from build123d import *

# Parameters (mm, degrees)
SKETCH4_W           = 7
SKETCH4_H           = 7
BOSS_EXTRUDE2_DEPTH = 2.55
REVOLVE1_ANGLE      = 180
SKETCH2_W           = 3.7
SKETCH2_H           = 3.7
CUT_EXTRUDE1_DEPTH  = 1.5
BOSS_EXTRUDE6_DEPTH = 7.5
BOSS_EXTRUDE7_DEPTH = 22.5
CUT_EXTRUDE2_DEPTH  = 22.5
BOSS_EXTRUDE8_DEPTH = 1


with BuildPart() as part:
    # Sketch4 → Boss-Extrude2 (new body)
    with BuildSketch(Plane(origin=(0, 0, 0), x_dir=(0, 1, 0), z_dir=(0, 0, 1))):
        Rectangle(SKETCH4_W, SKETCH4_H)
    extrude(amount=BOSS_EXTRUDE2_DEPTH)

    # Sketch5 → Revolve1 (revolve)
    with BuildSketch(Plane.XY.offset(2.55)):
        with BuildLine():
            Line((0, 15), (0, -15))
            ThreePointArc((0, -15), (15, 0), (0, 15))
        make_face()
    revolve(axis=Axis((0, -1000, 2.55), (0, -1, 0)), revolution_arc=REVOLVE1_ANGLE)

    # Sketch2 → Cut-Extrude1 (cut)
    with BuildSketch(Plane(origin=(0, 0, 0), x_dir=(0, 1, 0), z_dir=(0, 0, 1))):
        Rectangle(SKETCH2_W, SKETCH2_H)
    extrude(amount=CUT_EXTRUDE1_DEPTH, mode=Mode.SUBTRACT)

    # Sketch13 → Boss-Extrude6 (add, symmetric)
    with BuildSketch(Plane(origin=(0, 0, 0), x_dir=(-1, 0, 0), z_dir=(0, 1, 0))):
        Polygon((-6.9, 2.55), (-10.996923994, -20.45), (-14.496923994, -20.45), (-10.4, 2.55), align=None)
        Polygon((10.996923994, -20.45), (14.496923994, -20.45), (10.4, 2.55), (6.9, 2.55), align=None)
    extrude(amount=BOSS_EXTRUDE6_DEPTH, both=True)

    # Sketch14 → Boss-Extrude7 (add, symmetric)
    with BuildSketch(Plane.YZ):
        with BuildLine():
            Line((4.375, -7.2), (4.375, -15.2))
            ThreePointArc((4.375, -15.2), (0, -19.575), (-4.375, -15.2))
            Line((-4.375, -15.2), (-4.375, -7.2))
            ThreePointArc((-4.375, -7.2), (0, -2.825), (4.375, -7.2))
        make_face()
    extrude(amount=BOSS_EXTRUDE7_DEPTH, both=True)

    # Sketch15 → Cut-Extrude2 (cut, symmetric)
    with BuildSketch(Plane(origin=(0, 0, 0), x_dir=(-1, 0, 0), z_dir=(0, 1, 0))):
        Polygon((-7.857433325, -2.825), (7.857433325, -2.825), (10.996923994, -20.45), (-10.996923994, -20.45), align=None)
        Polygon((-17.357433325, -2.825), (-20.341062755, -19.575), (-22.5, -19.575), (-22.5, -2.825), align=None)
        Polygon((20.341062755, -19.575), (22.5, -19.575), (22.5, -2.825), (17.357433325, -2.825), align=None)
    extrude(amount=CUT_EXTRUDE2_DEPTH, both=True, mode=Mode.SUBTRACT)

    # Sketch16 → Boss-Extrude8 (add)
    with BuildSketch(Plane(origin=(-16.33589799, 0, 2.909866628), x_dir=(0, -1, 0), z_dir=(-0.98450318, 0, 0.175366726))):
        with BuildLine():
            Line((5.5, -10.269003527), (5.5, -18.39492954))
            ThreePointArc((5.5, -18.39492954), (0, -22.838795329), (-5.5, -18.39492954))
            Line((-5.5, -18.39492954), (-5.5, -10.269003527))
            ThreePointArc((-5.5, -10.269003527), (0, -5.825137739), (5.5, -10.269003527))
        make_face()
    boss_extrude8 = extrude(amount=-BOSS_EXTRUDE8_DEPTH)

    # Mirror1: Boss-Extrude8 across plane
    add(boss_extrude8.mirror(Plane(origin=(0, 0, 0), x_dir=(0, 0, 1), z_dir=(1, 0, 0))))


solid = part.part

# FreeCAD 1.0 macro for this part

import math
import FreeCAD as App
import Part
import Sketcher

V = App.Vector
Q = App.Units.Quantity


def add_polygon(sketch, points):
    """Adds a closed chain of lines whose ends are joined by coincident constraints."""
    first, n = sketch.GeometryCount, len(points)
    for a, b in zip(points, points[1:] + points[:1]):
        sketch.addGeometry(Part.LineSegment(App.Vector(*a, 0), App.Vector(*b, 0)), False)
    for i in range(n):
        sketch.addConstraint(Sketcher.Constraint("Coincident", first + i, 2, first + (i + 1) % n, 1))

doc = App.newDocument("Part")
body = doc.addObject("PartDesign::Body", "Body")

# Sketch on XY plane
sketch1 = body.newObject("Sketcher::SketchObject", "Sketch")
sketch1.AttachmentSupport = (doc.getObject("XY_Plane"), [""])
sketch1.MapMode = "FlatFace"
add_polygon(sketch1, [(-4, -4), (4, -4), (4, 4), (-4, 4)])  # lines 0-3
sketch1.addConstraint([
    Sketcher.Constraint("Horizontal", 0),
    Sketcher.Constraint("Vertical", 1),
    Sketcher.Constraint("Horizontal", 2),
    Sketcher.Constraint("Vertical", 3),
    Sketcher.Constraint("Symmetric", 0, 2, 2, 2, -1, 1),
    Sketcher.Constraint("Equal", 2, 1),
    Sketcher.Constraint("DistanceX", 0, 1, 0, 2, 7.0),
])
pad1 = body.newObject("PartDesign::Pad", "Pad")
pad1.Profile = sketch1
pad1.Length = 2.55

# Sketch on XY plane
sketch2 = body.newObject("Sketcher::SketchObject", "Sketch001")
sketch2.AttachmentSupport = (doc.getObject("XY_Plane"), [""])
sketch2.MapMode = "FlatFace"
sketch2.AttachmentOffset = App.Placement(V(0, 0, 2.55), App.Rotation())
sketch2.addGeometry([
    Part.LineSegment(V(0, 15, 0), V(0, -15, 0)),
    Part.ArcOfCircle(Part.Circle(V(0, 0, 0), V(0, 0, 1), 15), math.radians(-90), math.radians(90)),
], False)
sketch2.addConstraint([
    Sketcher.Constraint("Coincident", 0, 1, 1, 2),
    Sketcher.Constraint("Coincident", 1, 1, 0, 2),
    Sketcher.Constraint("Vertical", 0),
    Sketcher.Constraint("Coincident", 1, 3, -1, 1),
    Sketcher.Constraint("PointOnObject", 0, 1, -2),
    Sketcher.Constraint("Radius", 1, 15.0),
])
revolution = body.newObject("PartDesign::Revolution", "Revolution")
revolution.Profile = sketch2
revolution.ReferenceAxis = (sketch2, ["V_Axis"])
revolution.Angle = 180
revolution.Reversed = True

# Sketch on XY plane
sketch3 = body.newObject("Sketcher::SketchObject", "Sketch002")
sketch3.AttachmentSupport = (doc.getObject("XY_Plane"), [""])
sketch3.MapMode = "FlatFace"
add_polygon(sketch3, [(-1.9, -1.9), (1.9, -1.9), (1.9, 1.9), (-1.9, 1.9)])  # lines 0-3
sketch3.addConstraint([
    Sketcher.Constraint("Horizontal", 0),
    Sketcher.Constraint("Vertical", 1),
    Sketcher.Constraint("Horizontal", 2),
    Sketcher.Constraint("Vertical", 3),
    Sketcher.Constraint("Symmetric", 0, 2, 2, 2, -1, 1),
    Sketcher.Constraint("Equal", 2, 1),
    Sketcher.Constraint("DistanceX", 0, 1, 0, 2, 3.7),
])
pocket1 = body.newObject("PartDesign::Pocket", "Pocket")
pocket1.Profile = sketch3
pocket1.Length = 1.5
pocket1.Reversed = True

# Sketch on XZ plane
sketch4 = body.newObject("Sketcher::SketchObject", "Sketch003")
sketch4.AttachmentSupport = (doc.getObject("XZ_Plane"), [""])
sketch4.MapMode = "FlatFace"
add_polygon(sketch4, [(11, -20.4), (6.9, 2.5), (10.4, 2.5), (14.5, -20.4)])  # lines 0-3
add_polygon(sketch4, [(-11, -20.4), (-14.5, -20.4), (-10.4, 2.5), (-6.9, 2.5)])  # lines 4-7
sketch4.addConstraint([
    Sketcher.Constraint("Horizontal", 1),
    Sketcher.Constraint("Horizontal", 3),
    Sketcher.Constraint("Horizontal", 4),
    Sketcher.Constraint("Horizontal", 6),
    Sketcher.Constraint("Symmetric", 2, 2, 4, 2, -2),
    Sketcher.Constraint("Symmetric", 1, 2, 5, 2, -2),
    Sketcher.Constraint("Parallel", 0, 2),
    Sketcher.Constraint("Parallel", 5, 7),
    Sketcher.Constraint("Equal", 3, 4),
    Sketcher.Constraint("DistanceX", 1, 1, 1, 2, 3.5),
    Sketcher.Constraint("Angle", 0, Q("100.1 deg")),
    Sketcher.Constraint("DistanceY", 2, 2, 1, 2, 23.0),
    Sketcher.Constraint("DistanceX", -1, 1, 0, 2, 6.9),
    Sketcher.Constraint("DistanceY", -1, 1, 0, 2, 2.55),
])
pad2 = body.newObject("PartDesign::Pad", "Pad001")
pad2.Profile = sketch4
pad2.Length = 15
pad2.Midplane = True

# Sketch on YZ plane
sketch5 = body.newObject("Sketcher::SketchObject", "Sketch004")
sketch5.AttachmentSupport = (doc.getObject("YZ_Plane"), [""])
sketch5.MapMode = "FlatFace"
sketch5.addGeometry([
    Part.LineSegment(V(4.4, -15.2, 0), V(4.4, -7.2, 0)),
    Part.ArcOfCircle(Part.Circle(V(0, -7.2, 0), V(0, 0, 1), 4.4), math.radians(0), math.radians(180)),
    Part.LineSegment(V(-4.4, -7.2, 0), V(-4.4, -15.2, 0)),
    Part.ArcOfCircle(Part.Circle(V(0, -15.2, 0), V(0, 0, 1), 4.4), math.radians(180), math.radians(360)),
], False)
sketch5.addConstraint([
    Sketcher.Constraint("Tangent", 0, 2, 1, 1),
    Sketcher.Constraint("Tangent", 1, 2, 2, 1),
    Sketcher.Constraint("Tangent", 2, 2, 3, 1),
    Sketcher.Constraint("Tangent", 3, 2, 0, 1),
    Sketcher.Constraint("Vertical", 0),
    Sketcher.Constraint("Vertical", 2),
    Sketcher.Constraint("PointOnObject", 1, 3, -2),
    Sketcher.Constraint("DistanceY", 0, 1, 0, 2, 8.0),
    Sketcher.Constraint("Radius", 1, 4.375),
    Sketcher.Constraint("DistanceY", 1, 3, -1, 1, 7.2),
])
pad3 = body.newObject("PartDesign::Pad", "Pad002")
pad3.Profile = sketch5
pad3.Length = 45
pad3.Midplane = True

# Sketch on XZ plane
sketch6 = body.newObject("Sketcher::SketchObject", "Sketch005")
sketch6.AttachmentSupport = (doc.getObject("XZ_Plane"), [""])
sketch6.MapMode = "FlatFace"
add_polygon(sketch6, [(-7.9, -2.8), (7.9, -2.8), (11, -20.4), (-11, -20.4)])  # lines 0-3
add_polygon(sketch6, [(20.3, -19.6), (17.4, -2.8), (22.5, -2.8), (22.5, -19.6)])  # lines 4-7
add_polygon(sketch6, [(-20.3, -19.6), (-22.5, -19.6), (-22.5, -2.8), (-17.4, -2.8)])  # lines 8-11
sketch6.addConstraint([
    Sketcher.Constraint("Horizontal", 0),
    Sketcher.Constraint("Horizontal", 2),
    Sketcher.Constraint("Horizontal", 5),
    Sketcher.Constraint("Vertical", 6),
    Sketcher.Constraint("Horizontal", 7),
    Sketcher.Constraint("Horizontal", 8),
    Sketcher.Constraint("Vertical", 9),
    Sketcher.Constraint("Horizontal", 10),
    Sketcher.Constraint("Symmetric", 6, 2, 8, 2, -2),
    Sketcher.Constraint("Symmetric", 4, 2, 10, 2, -2),
    Sketcher.Constraint("Parallel", 1, 4),
    Sketcher.Constraint("Parallel", 3, 11),
    Sketcher.Constraint("Horizontal", 3, 2, 4, 2),
    Sketcher.Constraint("Equal", 7, 8),
    Sketcher.Constraint("Angle", 1, Q("-79.9 deg")),
    Sketcher.Constraint("DistanceY", 6, 2, 6, 1, 16.75),
    Sketcher.Constraint("DistanceX", -1, 1, 5, 2, 22.5),
    Sketcher.Constraint("DistanceX", 0, 2, 4, 2, 9.5),
    Sketcher.Constraint("DistanceX", 10, 2, 3, 2, 9.5),
    Sketcher.Constraint("DistanceY", 1, 2, -1, 1, 20.45),
    Sketcher.Constraint("DistanceY", 0, 2, -1, 1, 2.825),
    Sketcher.Constraint("DistanceX", 0, 1, 0, 2, 15.714867),
])
pocket2 = body.newObject("PartDesign::Pocket", "Pocket001")
pocket2.Profile = sketch6
pocket2.Length = 45
pocket2.Midplane = True

# Sketch on an angled plane
sketch7 = body.newObject("Sketcher::SketchObject", "Sketch006")
sketch7.Placement = App.Placement(V(-16.335898, 0, 2.909867), App.Rotation(V(0, -1, 0), V(0.175366726, 0, 0.98450318), V(-0.98450318, 0, 0.175366726), "ZXY"))
sketch7.addGeometry([
    Part.LineSegment(V(6, -18, 0), V(6, -10, 0)),
    Part.ArcOfCircle(Part.Circle(V(0, -11, 0), V(0, 0, 1), 6), math.radians(12), math.radians(168)),
    Part.LineSegment(V(-6, -10, 0), V(-6, -18, 0)),
    Part.ArcOfCircle(Part.Circle(V(0, -17, 0), V(0, 0, 1), 6), math.radians(-168), math.radians(-12)),
], False)
sketch7.addConstraint([
    Sketcher.Constraint("Coincident", 0, 2, 1, 1),
    Sketcher.Constraint("Coincident", 1, 2, 2, 1),
    Sketcher.Constraint("Coincident", 2, 2, 3, 1),
    Sketcher.Constraint("Coincident", 3, 2, 0, 1),
    Sketcher.Constraint("Vertical", 0),
    Sketcher.Constraint("Vertical", 2),
    Sketcher.Constraint("Equal", 1, 3),
    Sketcher.Constraint("Symmetric", 0, 2, 1, 2, -2),
    Sketcher.Constraint("PointOnObject", 3, 3, -2),
    Sketcher.Constraint("DistanceX", 1, 2, 0, 2, 11.0),
    Sketcher.Constraint("Radius", 1, 5.625501),
    Sketcher.Constraint("DistanceY", 0, 1, 0, 2, 8.125926),
    Sketcher.Constraint("DistanceY", 1, 3, -1, 1, 11.450639),
])
pad4 = body.newObject("PartDesign::Pad", "Pad003")
pad4.Profile = sketch7
pad4.Length = 1
pad4.Reversed = True
doc.recompute()

mirrored = body.newObject("PartDesign::Mirrored", "Mirrored")
mirrored.Originals = [pad4]
mirrored.MirrorPlane = (doc.getObject("YZ_Plane"), [""])
body.Tip = mirrored

doc.recompute()
